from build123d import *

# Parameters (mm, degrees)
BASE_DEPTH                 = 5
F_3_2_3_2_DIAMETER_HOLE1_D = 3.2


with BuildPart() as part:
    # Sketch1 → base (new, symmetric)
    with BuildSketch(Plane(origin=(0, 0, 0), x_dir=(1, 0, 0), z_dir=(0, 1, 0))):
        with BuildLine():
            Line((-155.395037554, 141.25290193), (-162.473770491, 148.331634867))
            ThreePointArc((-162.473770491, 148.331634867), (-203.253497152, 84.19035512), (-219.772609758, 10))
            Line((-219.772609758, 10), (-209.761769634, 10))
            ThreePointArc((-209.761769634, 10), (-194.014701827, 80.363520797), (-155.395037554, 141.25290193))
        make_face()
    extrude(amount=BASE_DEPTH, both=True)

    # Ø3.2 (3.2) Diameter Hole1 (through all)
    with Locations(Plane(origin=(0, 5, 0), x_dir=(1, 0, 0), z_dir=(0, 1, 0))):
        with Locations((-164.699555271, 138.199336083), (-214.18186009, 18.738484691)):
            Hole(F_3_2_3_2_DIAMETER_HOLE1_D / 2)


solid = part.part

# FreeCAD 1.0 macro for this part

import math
import FreeCAD as App
import Part
import Sketcher
Q = App.Units.Quantity

doc = App.newDocument("Part")
body = doc.addObject("PartDesign::Body", "Body")

# Sketch on XZ plane
sketch1 = body.newObject("Sketcher::SketchObject", "Sketch")
sketch1.AttachmentSupport = (doc.getObject("XZ_Plane"), [""])
sketch1.MapMode = "FlatFace"
sketch1.addGeometry(Part.LineSegment(App.Vector(-155, -141, 0), App.Vector(-162, -148, 0)), False)
sketch1.addGeometry(Part.ArcOfCircle(Part.Circle(App.Vector(0, 0, 0), App.Vector(0, 0, 1), 220), math.radians(-177), math.radians(-138)), False)
sketch1.addGeometry(Part.LineSegment(App.Vector(-220, -10, 0), App.Vector(-210, -10, 0)), False)
sketch1.addGeometry(Part.ArcOfCircle(Part.Circle(App.Vector(0, 0, 0), App.Vector(0, 0, 1), 210), math.radians(-177), math.radians(-138)), False)
sketch1.addConstraint(Sketcher.Constraint("Coincident", 0, 2, 1, 2))
sketch1.addConstraint(Sketcher.Constraint("Coincident", 1, 1, 2, 1))
sketch1.addConstraint(Sketcher.Constraint("Coincident", 2, 2, 3, 1))
sketch1.addConstraint(Sketcher.Constraint("Coincident", 3, 2, 0, 1))
sketch1.addConstraint(Sketcher.Constraint("Horizontal", 2))
sketch1.addConstraint(Sketcher.Constraint("Coincident", 1, 3, -1, 1))
sketch1.addConstraint(Sketcher.Constraint("Coincident", 3, 3, -1, 1))
sketch1.addConstraint(Sketcher.Constraint("Radius", 1, 220.0))
sketch1.addConstraint(Sketcher.Constraint("Radius", 3, 210.0))
sketch1.addConstraint(Sketcher.Constraint("Angle", 0, Q("-135 deg")))
sketch1.addConstraint(Sketcher.Constraint("DistanceY", 1, 1, -1, 1, 10.0))
sketch1.addConstraint(Sketcher.Constraint("DistanceX", 2, 2, 0, 2, 47.287999))
pad1 = body.newObject("PartDesign::Pad", "Pad")
pad1.Profile = sketch1
pad1.Length = 10
pad1.Midplane = True

# Sketch on XZ plane
sketch2 = body.newObject("Sketcher::SketchObject", "Sketch001")
sketch2.AttachmentSupport = (doc.getObject("XZ_Plane"), [""])
sketch2.MapMode = "FlatFace"
sketch2.AttachmentOffset = App.Placement(App.Vector(0, 0, -5), App.Rotation())
sketch2.addGeometry(Part.Circle(App.Vector(-164.7, -138.2, 0), App.Vector(0, 0, 1), 1.6), False)
sketch2.addGeometry(Part.Circle(App.Vector(-214.2, -18.7, 0), App.Vector(0, 0, 1), 1.6), False)
sketch2.addConstraint(Sketcher.Constraint("Equal", 0, 1))
sketch2.addConstraint(Sketcher.Constraint("Diameter", 0, 3.2))
sketch2.addConstraint(Sketcher.Constraint("DistanceX", 1, 3, -1, 1, 214.18186))
sketch2.addConstraint(Sketcher.Constraint("DistanceY", 0, 3, 1, 3, 119.460851))
sketch2.addConstraint(Sketcher.Constraint("DistanceX", 0, 3, -1, 1, 164.699555))
sketch2.addConstraint(Sketcher.Constraint("DistanceY", 0, 3, -1, 1, 138.199336))
doc.recompute()
hole = body.newObject("PartDesign::Hole", "Hole")
hole.Profile = sketch2
hole.ThreadType = "None"
hole.Diameter = 3.2
hole.DepthType = "ThroughAll"
hole.Reversed = True

doc.recompute()
